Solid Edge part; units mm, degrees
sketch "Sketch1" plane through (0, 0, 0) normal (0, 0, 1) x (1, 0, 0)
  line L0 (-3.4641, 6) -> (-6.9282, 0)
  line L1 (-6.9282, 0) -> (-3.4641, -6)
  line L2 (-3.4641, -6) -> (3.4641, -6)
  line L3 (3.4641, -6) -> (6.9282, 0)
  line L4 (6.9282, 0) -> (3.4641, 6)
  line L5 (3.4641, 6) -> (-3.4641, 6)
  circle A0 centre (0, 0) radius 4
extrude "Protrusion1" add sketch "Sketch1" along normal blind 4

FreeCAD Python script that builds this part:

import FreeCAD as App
import Part
import Sketcher
Q = App.Units.Quantity


def add_polygon(sketch, points):
    """Adds a closed chain of lines whose ends are joined by coincident constraints."""
    first, n = sketch.GeometryCount, len(points)
    for a, b in zip(points, points[1:] + points[:1]):
        sketch.addGeometry(Part.LineSegment(App.Vector(*a, 0), App.Vector(*b, 0)), False)
    for i in range(n):
        sketch.addConstraint(Sketcher.Constraint("Coincident", first + i, 2, first + (i + 1) % n, 1))

doc = App.newDocument("Part")
params = doc.addObject("Spreadsheet::Sheet", "Params")
for row, (alias, value) in enumerate([
    ("sketch1_diameter", "8 mm"),
    ("pad1_length", "4 mm"),
], start=1):
    params.set(f"A{row}", alias)
    params.set(f"B{row}", "=" + value)
    params.setAlias(f"B{row}", alias)

body = doc.addObject("PartDesign::Body", "Body")

sketch1 = body.newObject("Sketcher::SketchObject", "Sketch")
sketch1.AttachmentSupport = (doc.getObject("XY_Plane"), [""])
sketch1.MapMode = "FlatFace"
add_polygon(sketch1, [(3.4641, 6), (-3.4641, 6), (-6.9282, 0), (-3.4641, -6), (3.4641, -6), (6.9282, 0)])
sketch1.addGeometry(Part.Circle(App.Vector(0, 0, 0), App.Vector(0, 0, 1), 4), False)
sketch1.addConstraint([
    Sketcher.Constraint("Horizontal", 0),
    Sketcher.Constraint("Horizontal", 3),
    Sketcher.Constraint("Coincident", 6, 3, -1, 1),
    Sketcher.Constraint("Symmetric", 0, 2, 3, 2, -1, 1),
    Sketcher.Constraint("Symmetric", 1, 2, 4, 2, -1, 1),
    Sketcher.Constraint("PointOnObject", 1, 2, -1),
    Sketcher.Constraint("Parallel", 2, 5),
    Sketcher.Constraint("Vertical", 0, 2, 2, 2),
    Sketcher.Constraint("Diameter", 6, Q("8 mm")),
    Sketcher.Constraint("Angle", 1, Q("-120 deg")),
    Sketcher.Constraint("DistanceY", -1, 1, 0, 2, Q("6 mm")),
    Sketcher.Constraint("DistanceX", 0, 2, 0, 1, Q("6.9282 mm")),
])
sketch1.setExpression("Constraints[14]", "Params.sketch1_diameter")
pad1 = body.newObject("PartDesign::Pad", "Pad")
pad1.Profile = sketch1
pad1.setExpression("Length", "Params.pad1_length")

doc.recompute()
